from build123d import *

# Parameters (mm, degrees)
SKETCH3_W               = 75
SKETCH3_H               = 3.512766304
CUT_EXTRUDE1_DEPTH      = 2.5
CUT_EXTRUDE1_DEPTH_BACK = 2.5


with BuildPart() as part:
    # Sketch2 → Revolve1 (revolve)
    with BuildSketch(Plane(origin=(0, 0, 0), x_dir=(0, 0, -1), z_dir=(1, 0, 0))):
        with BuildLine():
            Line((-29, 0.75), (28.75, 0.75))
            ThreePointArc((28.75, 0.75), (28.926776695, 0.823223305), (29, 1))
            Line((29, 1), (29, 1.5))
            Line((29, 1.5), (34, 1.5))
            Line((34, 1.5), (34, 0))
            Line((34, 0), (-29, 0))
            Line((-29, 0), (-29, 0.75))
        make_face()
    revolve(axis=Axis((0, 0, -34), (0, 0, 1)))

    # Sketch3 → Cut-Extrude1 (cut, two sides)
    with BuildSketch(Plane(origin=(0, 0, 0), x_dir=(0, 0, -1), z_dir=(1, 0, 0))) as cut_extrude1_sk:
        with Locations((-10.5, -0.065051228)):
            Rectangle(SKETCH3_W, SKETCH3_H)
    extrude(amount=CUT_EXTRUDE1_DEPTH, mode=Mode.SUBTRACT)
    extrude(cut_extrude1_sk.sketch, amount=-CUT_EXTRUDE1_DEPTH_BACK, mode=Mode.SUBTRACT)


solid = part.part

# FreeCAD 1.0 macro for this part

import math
import FreeCAD as App
import Part
import Sketcher


def add_polygon(sketch, points):
    """Adds a closed chain of lines whose ends are joined by coincident constraints."""
    first, n = sketch.GeometryCount, len(points)
    for a, b in zip(points, points[1:] + points[:1]):
        sketch.addGeometry(Part.LineSegment(App.Vector(*a, 0), App.Vector(*b, 0)), False)
    for i in range(n):
        sketch.addConstraint(Sketcher.Constraint("Coincident", first + i, 2, first + (i + 1) % n, 1))

doc = App.newDocument("Part")
params = doc.addObject("Spreadsheet::Sheet", "Params")
for row, (alias, value) in enumerate([
    ("sketch1_height", "63 mm"),
    ("sketch1_height2", "5 mm"),
    ("sketch1_radius", "0.25 mm"),
    ("sketch1_width", "1.5 mm"),
    ("sketch1_width2", "0.5 mm"),
    ("revolution_angle", "360 deg"),
    ("sketch2_height", "75 mm"),
], start=1):
    params.set(f"A{row}", alias)
    params.set(f"B{row}", "=" + value)
    params.setAlias(f"B{row}", alias)

body = doc.addObject("PartDesign::Body", "Body")

# Sketch on YZ plane
sketch1 = doc.addObject("Sketcher::SketchObject", "Sketch")
body.addObject(sketch1)
sketch1.AttachmentSupport = (doc.YZ_Plane, [""])
sketch1.MapMode = "FlatFace"
sketch1.addGeometry(Part.LineSegment(App.Vector(0.75, -28.75, 0), App.Vector(0.75, 29, 0)), False)
sketch1.addGeometry(Part.LineSegment(App.Vector(0.75, 29, 0), App.Vector(0, 29, 0)), False)
sketch1.addGeometry(Part.LineSegment(App.Vector(0, 29, 0), App.Vector(0, -34, 0)), False)
sketch1.addGeometry(Part.LineSegment(App.Vector(0, -34, 0), App.Vector(1.5, -34, 0)), False)
sketch1.addGeometry(Part.LineSegment(App.Vector(1.5, -34, 0), App.Vector(1.5, -29, 0)), False)
sketch1.addGeometry(Part.LineSegment(App.Vector(1.5, -29, 0), App.Vector(1, -29, 0)), False)
sketch1.addGeometry(Part.ArcOfCircle(Part.Circle(App.Vector(1, -28.75, 0), App.Vector(0, 0, 1), 0.25), math.radians(-180), math.radians(-90)), False)
sketch1.addConstraint(Sketcher.Constraint("Coincident", 0, 2, 1, 1))
sketch1.addConstraint(Sketcher.Constraint("Coincident", 1, 2, 2, 1))
sketch1.addConstraint(Sketcher.Constraint("Coincident", 2, 2, 3, 1))
sketch1.addConstraint(Sketcher.Constraint("Coincident", 3, 2, 4, 1))
sketch1.addConstraint(Sketcher.Constraint("Coincident", 4, 2, 5, 1))
sketch1.addConstraint(Sketcher.Constraint("Tangent", 5, 2, 6, 2))
sketch1.addConstraint(Sketcher.Constraint("Tangent", 6, 1, 0, 1))
sketch1.addConstraint(Sketcher.Constraint("Vertical", 0))
sketch1.addConstraint(Sketcher.Constraint("Horizontal", 1))
sketch1.addConstraint(Sketcher.Constraint("Vertical", 2))
sketch1.addConstraint(Sketcher.Constraint("Horizontal", 3))
sketch1.addConstraint(Sketcher.Constraint("Vertical", 4))
sketch1.addConstraint(Sketcher.Constraint("Horizontal", 5))
sketch1.addConstraint(Sketcher.Constraint("PointOnObject", 1, 2, -2))
sketch1.addConstraint(Sketcher.Constraint("DistanceY", 2, 2, 2, 1, 63.0))
sketch1.addConstraint(Sketcher.Constraint("DistanceY", 4, 1, 4, 2, 5.0))
sketch1.addConstraint(Sketcher.Constraint("Radius", 6, 0.25))
sketch1.addConstraint(Sketcher.Constraint("DistanceX", 3, 1, 3, 2, 1.5))
sketch1.addConstraint(Sketcher.Constraint("DistanceX", 5, 2, 5, 1, 0.5))
sketch1.addConstraint(Sketcher.Constraint("DistanceY", -1, 1, 0, 2, 29.0))
sketch1.setExpression("Constraints[14]", "Params.sketch1_height")
sketch1.setExpression("Constraints[15]", "Params.sketch1_height2")
sketch1.setExpression("Constraints[16]", "Params.sketch1_radius")
sketch1.setExpression("Constraints[17]", "Params.sketch1_width")
sketch1.setExpression("Constraints[18]", "Params.sketch1_width2")
revolution = doc.addObject("PartDesign::Revolution", "Revolution")
body.addObject(revolution)
revolution.Profile = sketch1
revolution.ReferenceAxis = (sketch1, ["V_Axis"])
revolution.setExpression("Angle", "Params.revolution_angle")

# Sketch on YZ plane
sketch2 = doc.addObject("Sketcher::SketchObject", "Sketch001")
body.addObject(sketch2)
sketch2.AttachmentSupport = (doc.YZ_Plane, [""])
sketch2.MapMode = "FlatFace"
add_polygon(sketch2, [(1.691332, 48), (-1.821434, 48), (-1.821434, -27), (1.691332, -27)])  # lines 0-3
sketch2.addConstraint(Sketcher.Constraint("Horizontal", 0))
sketch2.addConstraint(Sketcher.Constraint("Vertical", 1))
sketch2.addConstraint(Sketcher.Constraint("Horizontal", 2))
sketch2.addConstraint(Sketcher.Constraint("Vertical", 3))
sketch2.addConstraint(Sketcher.Constraint("DistanceY", 1, 2, 1, 1, 75.0))
sketch2.addConstraint(Sketcher.Constraint("DistanceY", -1, 1, 0, 2, 48.0))
sketch2.addConstraint(Sketcher.Constraint("DistanceX", 0, 2, 0, 1, 3.512766))
sketch2.addConstraint(Sketcher.Constraint("DistanceX", -1, 1, 2, 2, 1.691332))
sketch2.setExpression("Constraints[8]", "Params.sketch2_height")
pocket1 = doc.addObject("PartDesign::Pocket", "Pocket")
body.addObject(pocket1)
pocket1.Profile = sketch2
pocket1.Type = "ThroughAll"
pocket1.Midplane = True

doc.recompute()
